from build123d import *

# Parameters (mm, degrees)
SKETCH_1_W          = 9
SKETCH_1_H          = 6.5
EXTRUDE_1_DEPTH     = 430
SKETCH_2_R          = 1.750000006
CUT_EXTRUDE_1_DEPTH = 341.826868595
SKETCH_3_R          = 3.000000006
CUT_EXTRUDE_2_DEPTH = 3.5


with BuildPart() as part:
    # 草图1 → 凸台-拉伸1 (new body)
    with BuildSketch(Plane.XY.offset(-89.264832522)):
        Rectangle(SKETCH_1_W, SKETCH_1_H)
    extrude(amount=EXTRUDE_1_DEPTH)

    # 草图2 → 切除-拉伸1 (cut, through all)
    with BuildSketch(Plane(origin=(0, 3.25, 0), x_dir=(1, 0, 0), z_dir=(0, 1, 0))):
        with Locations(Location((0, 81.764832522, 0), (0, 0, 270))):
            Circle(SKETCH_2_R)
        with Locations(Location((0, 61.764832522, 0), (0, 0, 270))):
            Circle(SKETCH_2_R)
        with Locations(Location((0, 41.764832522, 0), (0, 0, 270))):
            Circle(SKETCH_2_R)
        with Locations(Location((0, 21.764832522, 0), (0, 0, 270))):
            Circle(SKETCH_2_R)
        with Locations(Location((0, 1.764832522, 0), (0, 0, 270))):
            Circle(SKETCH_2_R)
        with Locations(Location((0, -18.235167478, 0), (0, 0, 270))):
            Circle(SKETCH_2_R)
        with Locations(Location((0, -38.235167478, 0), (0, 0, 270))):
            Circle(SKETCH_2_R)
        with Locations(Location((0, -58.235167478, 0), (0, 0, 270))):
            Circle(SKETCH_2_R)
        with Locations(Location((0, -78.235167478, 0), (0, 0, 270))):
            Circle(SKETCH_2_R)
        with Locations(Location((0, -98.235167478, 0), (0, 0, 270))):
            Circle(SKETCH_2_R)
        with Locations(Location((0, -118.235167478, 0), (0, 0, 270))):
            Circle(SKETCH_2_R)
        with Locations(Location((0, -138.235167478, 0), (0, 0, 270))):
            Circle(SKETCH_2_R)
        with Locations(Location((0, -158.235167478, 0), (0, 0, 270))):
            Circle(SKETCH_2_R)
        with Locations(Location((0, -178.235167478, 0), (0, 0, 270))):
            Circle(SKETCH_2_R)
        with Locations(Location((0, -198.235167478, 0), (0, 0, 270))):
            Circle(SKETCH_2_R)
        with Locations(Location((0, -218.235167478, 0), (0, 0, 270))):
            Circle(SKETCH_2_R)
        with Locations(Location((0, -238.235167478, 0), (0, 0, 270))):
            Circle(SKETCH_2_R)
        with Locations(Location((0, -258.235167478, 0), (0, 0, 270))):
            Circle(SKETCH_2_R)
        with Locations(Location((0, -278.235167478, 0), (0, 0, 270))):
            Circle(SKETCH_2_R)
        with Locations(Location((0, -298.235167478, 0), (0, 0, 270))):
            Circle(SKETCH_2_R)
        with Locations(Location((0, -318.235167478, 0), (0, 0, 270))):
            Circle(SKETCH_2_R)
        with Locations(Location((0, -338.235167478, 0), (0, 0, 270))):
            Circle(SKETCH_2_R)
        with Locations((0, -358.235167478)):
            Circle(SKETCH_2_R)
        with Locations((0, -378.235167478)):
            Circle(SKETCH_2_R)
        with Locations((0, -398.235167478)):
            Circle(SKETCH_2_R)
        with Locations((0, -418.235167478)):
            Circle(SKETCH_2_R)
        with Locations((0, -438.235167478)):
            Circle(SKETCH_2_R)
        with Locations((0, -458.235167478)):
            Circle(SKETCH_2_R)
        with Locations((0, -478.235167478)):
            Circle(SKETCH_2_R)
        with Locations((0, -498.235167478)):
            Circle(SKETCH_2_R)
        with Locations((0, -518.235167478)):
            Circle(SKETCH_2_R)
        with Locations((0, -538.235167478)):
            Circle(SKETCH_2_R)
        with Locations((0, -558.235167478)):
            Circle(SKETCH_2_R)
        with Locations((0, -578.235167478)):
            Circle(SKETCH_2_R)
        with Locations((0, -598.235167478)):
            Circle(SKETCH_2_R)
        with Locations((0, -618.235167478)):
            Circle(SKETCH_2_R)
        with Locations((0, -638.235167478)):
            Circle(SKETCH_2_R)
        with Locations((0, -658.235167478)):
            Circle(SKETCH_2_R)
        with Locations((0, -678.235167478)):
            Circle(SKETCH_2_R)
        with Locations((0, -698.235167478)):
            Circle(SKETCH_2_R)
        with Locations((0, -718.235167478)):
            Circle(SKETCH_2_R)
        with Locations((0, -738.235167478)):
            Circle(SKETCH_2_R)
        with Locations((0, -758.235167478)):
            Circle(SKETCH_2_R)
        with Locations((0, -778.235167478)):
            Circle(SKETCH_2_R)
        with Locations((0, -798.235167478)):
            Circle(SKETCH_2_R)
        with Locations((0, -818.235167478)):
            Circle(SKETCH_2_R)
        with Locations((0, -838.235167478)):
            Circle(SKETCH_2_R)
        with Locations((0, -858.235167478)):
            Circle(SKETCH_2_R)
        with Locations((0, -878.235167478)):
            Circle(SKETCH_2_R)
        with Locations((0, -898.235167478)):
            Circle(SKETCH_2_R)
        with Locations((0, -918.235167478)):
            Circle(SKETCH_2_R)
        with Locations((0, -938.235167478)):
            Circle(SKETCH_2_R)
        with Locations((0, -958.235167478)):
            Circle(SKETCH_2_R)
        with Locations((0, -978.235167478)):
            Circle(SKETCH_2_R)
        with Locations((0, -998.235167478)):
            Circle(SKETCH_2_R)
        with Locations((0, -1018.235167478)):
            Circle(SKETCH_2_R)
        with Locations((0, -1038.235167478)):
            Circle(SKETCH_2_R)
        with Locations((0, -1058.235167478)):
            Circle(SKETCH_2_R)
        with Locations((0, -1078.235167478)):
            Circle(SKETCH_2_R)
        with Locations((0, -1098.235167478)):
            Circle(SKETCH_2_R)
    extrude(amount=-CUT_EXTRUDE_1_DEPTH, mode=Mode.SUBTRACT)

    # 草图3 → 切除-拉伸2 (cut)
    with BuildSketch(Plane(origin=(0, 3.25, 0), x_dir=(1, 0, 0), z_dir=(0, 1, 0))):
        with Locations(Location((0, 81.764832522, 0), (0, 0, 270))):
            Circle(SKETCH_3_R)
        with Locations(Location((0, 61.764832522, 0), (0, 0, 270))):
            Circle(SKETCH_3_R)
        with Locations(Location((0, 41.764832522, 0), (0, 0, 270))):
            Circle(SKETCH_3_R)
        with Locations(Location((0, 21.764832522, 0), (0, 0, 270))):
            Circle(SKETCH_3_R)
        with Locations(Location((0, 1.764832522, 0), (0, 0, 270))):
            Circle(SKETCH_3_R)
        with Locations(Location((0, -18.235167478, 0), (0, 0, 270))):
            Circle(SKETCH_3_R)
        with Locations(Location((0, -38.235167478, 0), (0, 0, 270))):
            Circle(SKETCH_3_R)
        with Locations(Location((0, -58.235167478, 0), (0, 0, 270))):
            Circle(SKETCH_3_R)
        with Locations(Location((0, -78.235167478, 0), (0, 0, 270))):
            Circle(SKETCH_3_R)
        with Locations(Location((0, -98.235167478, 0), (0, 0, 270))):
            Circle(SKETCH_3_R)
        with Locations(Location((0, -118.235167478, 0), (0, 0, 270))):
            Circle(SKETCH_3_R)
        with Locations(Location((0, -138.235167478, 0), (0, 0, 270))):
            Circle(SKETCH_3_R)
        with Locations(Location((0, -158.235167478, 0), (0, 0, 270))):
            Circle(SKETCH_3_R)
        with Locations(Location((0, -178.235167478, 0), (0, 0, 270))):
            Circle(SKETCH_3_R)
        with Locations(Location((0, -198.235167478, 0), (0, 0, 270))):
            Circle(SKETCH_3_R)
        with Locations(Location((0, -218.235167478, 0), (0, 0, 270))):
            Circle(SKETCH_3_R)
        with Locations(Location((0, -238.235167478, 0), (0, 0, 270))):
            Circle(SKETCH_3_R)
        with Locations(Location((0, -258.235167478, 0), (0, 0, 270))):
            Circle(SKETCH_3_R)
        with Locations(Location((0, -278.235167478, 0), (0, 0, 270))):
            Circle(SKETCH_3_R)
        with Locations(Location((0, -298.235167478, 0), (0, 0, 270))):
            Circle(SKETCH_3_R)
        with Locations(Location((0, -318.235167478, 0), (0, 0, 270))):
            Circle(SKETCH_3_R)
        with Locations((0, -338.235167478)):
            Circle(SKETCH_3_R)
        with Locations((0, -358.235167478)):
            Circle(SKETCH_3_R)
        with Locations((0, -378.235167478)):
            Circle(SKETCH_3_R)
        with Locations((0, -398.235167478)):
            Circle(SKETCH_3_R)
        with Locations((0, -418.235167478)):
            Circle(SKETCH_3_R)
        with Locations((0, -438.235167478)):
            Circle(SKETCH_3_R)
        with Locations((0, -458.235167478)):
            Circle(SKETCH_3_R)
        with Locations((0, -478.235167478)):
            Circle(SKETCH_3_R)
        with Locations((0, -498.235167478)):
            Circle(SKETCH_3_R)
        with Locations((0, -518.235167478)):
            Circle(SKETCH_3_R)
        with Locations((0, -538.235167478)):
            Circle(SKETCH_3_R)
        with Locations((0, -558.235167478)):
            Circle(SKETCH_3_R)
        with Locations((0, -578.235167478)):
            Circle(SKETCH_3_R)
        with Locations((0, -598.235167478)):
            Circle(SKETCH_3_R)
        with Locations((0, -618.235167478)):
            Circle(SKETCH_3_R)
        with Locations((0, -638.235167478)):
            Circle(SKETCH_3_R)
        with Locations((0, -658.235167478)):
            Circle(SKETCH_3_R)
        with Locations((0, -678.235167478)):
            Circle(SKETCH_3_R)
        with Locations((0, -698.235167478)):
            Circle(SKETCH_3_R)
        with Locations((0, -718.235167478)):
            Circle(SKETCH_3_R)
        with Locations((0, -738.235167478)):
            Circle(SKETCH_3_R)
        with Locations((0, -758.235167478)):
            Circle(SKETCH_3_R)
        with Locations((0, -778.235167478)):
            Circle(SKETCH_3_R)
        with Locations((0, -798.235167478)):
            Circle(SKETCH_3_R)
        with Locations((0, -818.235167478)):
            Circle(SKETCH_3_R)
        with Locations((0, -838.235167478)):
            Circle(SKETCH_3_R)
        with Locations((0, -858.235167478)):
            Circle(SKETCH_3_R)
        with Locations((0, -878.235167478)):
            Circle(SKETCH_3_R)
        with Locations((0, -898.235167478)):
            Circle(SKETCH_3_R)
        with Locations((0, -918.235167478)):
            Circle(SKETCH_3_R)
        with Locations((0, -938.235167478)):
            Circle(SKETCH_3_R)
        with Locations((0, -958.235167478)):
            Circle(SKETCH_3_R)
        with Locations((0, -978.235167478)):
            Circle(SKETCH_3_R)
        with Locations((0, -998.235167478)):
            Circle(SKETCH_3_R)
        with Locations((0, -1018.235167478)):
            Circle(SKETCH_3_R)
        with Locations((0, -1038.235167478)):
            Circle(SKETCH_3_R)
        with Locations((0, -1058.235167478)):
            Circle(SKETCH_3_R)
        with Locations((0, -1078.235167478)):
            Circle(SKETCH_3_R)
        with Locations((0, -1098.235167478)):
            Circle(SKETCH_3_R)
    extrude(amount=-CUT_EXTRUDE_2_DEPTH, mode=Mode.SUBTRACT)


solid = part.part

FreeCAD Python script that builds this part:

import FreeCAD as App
import Part
import Sketcher
Q = App.Units.Quantity


def add_polygon(sketch, points):
    """Adds a closed chain of lines whose ends are joined by coincident constraints."""
    first, n = sketch.GeometryCount, len(points)
    for a, b in zip(points, points[1:] + points[:1]):
        sketch.addGeometry(Part.LineSegment(App.Vector(*a, 0), App.Vector(*b, 0)), False)
    for i in range(n):
        sketch.addConstraint(Sketcher.Constraint("Coincident", first + i, 2, first + (i + 1) % n, 1))

doc = App.newDocument("Part")
body = doc.addObject("PartDesign::Body", "Body")

sketch1 = body.newObject("Sketcher::SketchObject", "Sketch")
sketch1.AttachmentSupport = (doc.getObject("XY_Plane"), [""])
sketch1.MapMode = "FlatFace"
sketch1.AttachmentOffset = App.Placement(App.Vector(0, 0, -89.264833), App.Rotation())
add_polygon(sketch1, [(-4.5, 3.25), (-4.5, -3.25), (4.5, -3.25), (4.5, 3.25)])
sketch1.addConstraint(Sketcher.Constraint("Vertical", 0))
sketch1.addConstraint(Sketcher.Constraint("Horizontal", 1))
sketch1.addConstraint(Sketcher.Constraint("Vertical", 2))
sketch1.addConstraint(Sketcher.Constraint("Horizontal", 3))
sketch1.addConstraint(Sketcher.Constraint("Symmetric", 0, 2, 2, 2, -1, 1))
sketch1.addConstraint(Sketcher.Constraint("DistanceX", 1, 1, 1, 2, Q("9 mm")))
sketch1.addConstraint(Sketcher.Constraint("DistanceY", 0, 2, 0, 1, Q("6.5 mm")))
pad1 = body.newObject("PartDesign::Pad", "Pad")
pad1.Profile = sketch1
pad1.Length = 430

sketch2 = body.newObject("Sketcher::SketchObject", "Sketch001")
sketch2.AttachmentSupport = (doc.getObject("XZ_Plane"), [""])
sketch2.MapMode = "FlatFace"
sketch2.AttachmentOffset = App.Placement(App.Vector(0, 0, -3.25), App.Rotation())
sketch2.addGeometry(Part.Circle(App.Vector(0, -81.764833, 0), App.Vector(0, 0, 1), 1.75), False)
sketch2.addGeometry(Part.Circle(App.Vector(0, -61.764833, 0), App.Vector(0, 0, 1), 1.75), False)
sketch2.addGeometry(Part.Circle(App.Vector(0, -41.764833, 0), App.Vector(0, 0, 1), 1.75), False)
sketch2.addGeometry(Part.Circle(App.Vector(0, -21.764833, 0), App.Vector(0, 0, 1), 1.75), False)
sketch2.addGeometry(Part.Circle(App.Vector(0, -1.764833, 0), App.Vector(0, 0, 1), 1.75), False)
sketch2.addGeometry(Part.Circle(App.Vector(0, 18.235167, 0), App.Vector(0, 0, 1), 1.75), False)
sketch2.addGeometry(Part.Circle(App.Vector(0, 38.235167, 0), App.Vector(0, 0, 1), 1.75), False)
sketch2.addGeometry(Part.Circle(App.Vector(0, 58.235167, 0), App.Vector(0, 0, 1), 1.75), False)
sketch2.addGeometry(Part.Circle(App.Vector(0, 78.235167, 0), App.Vector(0, 0, 1), 1.75), False)
sketch2.addGeometry(Part.Circle(App.Vector(0, 98.235167, 0), App.Vector(0, 0, 1), 1.75), False)
sketch2.addGeometry(Part.Circle(App.Vector(0, 118.235167, 0), App.Vector(0, 0, 1), 1.75), False)
sketch2.addGeometry(Part.Circle(App.Vector(0, 138.235167, 0), App.Vector(0, 0, 1), 1.75), False)
sketch2.addGeometry(Part.Circle(App.Vector(0, 158.235167, 0), App.Vector(0, 0, 1), 1.75), False)
sketch2.addGeometry(Part.Circle(App.Vector(0, 178.235167, 0), App.Vector(0, 0, 1), 1.75), False)
sketch2.addGeometry(Part.Circle(App.Vector(0, 198.235167, 0), App.Vector(0, 0, 1), 1.75), False)
sketch2.addGeometry(Part.Circle(App.Vector(0, 218.235167, 0), App.Vector(0, 0, 1), 1.75), False)
sketch2.addGeometry(Part.Circle(App.Vector(0, 238.235167, 0), App.Vector(0, 0, 1), 1.75), False)
sketch2.addGeometry(Part.Circle(App.Vector(0, 258.235167, 0), App.Vector(0, 0, 1), 1.75), False)
sketch2.addGeometry(Part.Circle(App.Vector(0, 278.235167, 0), App.Vector(0, 0, 1), 1.75), False)
sketch2.addGeometry(Part.Circle(App.Vector(0, 298.235167, 0), App.Vector(0, 0, 1), 1.75), False)
sketch2.addGeometry(Part.Circle(App.Vector(0, 318.235167, 0), App.Vector(0, 0, 1), 1.75), False)
sketch2.addGeometry(Part.Circle(App.Vector(0, 338.235167, 0), App.Vector(0, 0, 1), 1.75), False)
sketch2.addGeometry(Part.Circle(App.Vector(0, 358.235167, 0), App.Vector(0, 0, 1), 1.75), False)
sketch2.addGeometry(Part.Circle(App.Vector(0, 378.235167, 0), App.Vector(0, 0, 1), 1.75), False)
sketch2.addGeometry(Part.Circle(App.Vector(0, 398.235167, 0), App.Vector(0, 0, 1), 1.75), False)
sketch2.addGeometry(Part.Circle(App.Vector(0, 418.235167, 0), App.Vector(0, 0, 1), 1.75), False)
sketch2.addGeometry(Part.Circle(App.Vector(0, 438.235167, 0), App.Vector(0, 0, 1), 1.75), False)
sketch2.addGeometry(Part.Circle(App.Vector(0, 458.235167, 0), App.Vector(0, 0, 1), 1.75), False)
sketch2.addGeometry(Part.Circle(App.Vector(0, 478.235167, 0), App.Vector(0, 0, 1), 1.75), False)
sketch2.addGeometry(Part.Circle(App.Vector(0, 498.235167, 0), App.Vector(0, 0, 1), 1.75), False)
sketch2.addGeometry(Part.Circle(App.Vector(0, 518.235167, 0), App.Vector(0, 0, 1), 1.75), False)
sketch2.addGeometry(Part.Circle(App.Vector(0, 538.235167, 0), App.Vector(0, 0, 1), 1.75), False)
sketch2.addGeometry(Part.Circle(App.Vector(0, 558.235167, 0), App.Vector(0, 0, 1), 1.75), False)
sketch2.addGeometry(Part.Circle(App.Vector(0, 578.235167, 0), App.Vector(0, 0, 1), 1.75), False)
sketch2.addGeometry(Part.Circle(App.Vector(0, 598.235167, 0), App.Vector(0, 0, 1), 1.75), False)
sketch2.addGeometry(Part.Circle(App.Vector(0, 618.235167, 0), App.Vector(0, 0, 1), 1.75), False)
sketch2.addGeometry(Part.Circle(App.Vector(0, 638.235167, 0), App.Vector(0, 0, 1), 1.75), False)
sketch2.addGeometry(Part.Circle(App.Vector(0, 658.235167, 0), App.Vector(0, 0, 1), 1.75), False)
sketch2.addGeometry(Part.Circle(App.Vector(0, 678.235167, 0), App.Vector(0, 0, 1), 1.75), False)
sketch2.addGeometry(Part.Circle(App.Vector(0, 698.235167, 0), App.Vector(0, 0, 1), 1.75), False)
sketch2.addGeometry(Part.Circle(App.Vector(0, 718.235167, 0), App.Vector(0, 0, 1), 1.75), False)
sketch2.addGeometry(Part.Circle(App.Vector(0, 738.235167, 0), App.Vector(0, 0, 1), 1.75), False)
sketch2.addGeometry(Part.Circle(App.Vector(0, 758.235167, 0), App.Vector(0, 0, 1), 1.75), False)
sketch2.addGeometry(Part.Circle(App.Vector(0, 778.235167, 0), App.Vector(0, 0, 1), 1.75), False)
sketch2.addGeometry(Part.Circle(App.Vector(0, 798.235167, 0), App.Vector(0, 0, 1), 1.75), False)
sketch2.addGeometry(Part.Circle(App.Vector(0, 818.235167, 0), App.Vector(0, 0, 1), 1.75), False)
sketch2.addGeometry(Part.Circle(App.Vector(0, 838.235167, 0), App.Vector(0, 0, 1), 1.75), False)
sketch2.addGeometry(Part.Circle(App.Vector(0, 858.235167, 0), App.Vector(0, 0, 1), 1.75), False)
sketch2.addGeometry(Part.Circle(App.Vector(0, 878.235167, 0), App.Vector(0, 0, 1), 1.75), False)
sketch2.addGeometry(Part.Circle(App.Vector(0, 898.235167, 0), App.Vector(0, 0, 1), 1.75), False)
sketch2.addGeometry(Part.Circle(App.Vector(0, 918.235167, 0), App.Vector(0, 0, 1), 1.75), False)
sketch2.addGeometry(Part.Circle(App.Vector(0, 938.235167, 0), App.Vector(0, 0, 1), 1.75), False)
sketch2.addGeometry(Part.Circle(App.Vector(0, 958.235167, 0), App.Vector(0, 0, 1), 1.75), False)
sketch2.addGeometry(Part.Circle(App.Vector(0, 978.235167, 0), App.Vector(0, 0, 1), 1.75), False)
sketch2.addGeometry(Part.Circle(App.Vector(0, 998.235167, 0), App.Vector(0, 0, 1), 1.75), False)
sketch2.addGeometry(Part.Circle(App.Vector(0, 1018.235167, 0), App.Vector(0, 0, 1), 1.75), False)
sketch2.addGeometry(Part.Circle(App.Vector(0, 1038.235167, 0), App.Vector(0, 0, 1), 1.75), False)
sketch2.addGeometry(Part.Circle(App.Vector(0, 1058.235167, 0), App.Vector(0, 0, 1), 1.75), False)
sketch2.addGeometry(Part.Circle(App.Vector(0, 1078.235167, 0), App.Vector(0, 0, 1), 1.75), False)
sketch2.addGeometry(Part.Circle(App.Vector(0, 1098.235167, 0), App.Vector(0, 0, 1), 1.75), False)
sketch2.addConstraint(Sketcher.Constraint("Equal", 0, 1))
sketch2.addConstraint(Sketcher.Constraint("Equal", 1, 2))
sketch2.addConstraint(Sketcher.Constraint("Equal", 2, 3))
sketch2.addConstraint(Sketcher.Constraint("Equal", 3, 4))
sketch2.addConstraint(Sketcher.Constraint("Equal", 4, 5))
sketch2.addConstraint(Sketcher.Constraint("Equal", 5, 6))
sketch2.addConstraint(Sketcher.Constraint("Equal", 6, 7))
sketch2.addConstraint(Sketcher.Constraint("Equal", 7, 8))
sketch2.addConstraint(Sketcher.Constraint("Equal", 8, 9))
sketch2.addConstraint(Sketcher.Constraint("Equal", 9, 10))
sketch2.addConstraint(Sketcher.Constraint("Equal", 10, 11))
sketch2.addConstraint(Sketcher.Constraint("Equal", 11, 12))
sketch2.addConstraint(Sketcher.Constraint("Equal", 12, 13))
sketch2.addConstraint(Sketcher.Constraint("Equal", 13, 14))
sketch2.addConstraint(Sketcher.Constraint("Equal", 14, 15))
sketch2.addConstraint(Sketcher.Constraint("Equal", 15, 16))
sketch2.addConstraint(Sketcher.Constraint("Equal", 16, 17))
sketch2.addConstraint(Sketcher.Constraint("Equal", 17, 18))
sketch2.addConstraint(Sketcher.Constraint("Equal", 18, 19))
sketch2.addConstraint(Sketcher.Constraint("Equal", 19, 20))
sketch2.addConstraint(Sketcher.Constraint("Equal", 20, 21))
sketch2.addConstraint(Sketcher.Constraint("Equal", 21, 22))
sketch2.addConstraint(Sketcher.Constraint("Equal", 22, 23))
sketch2.addConstraint(Sketcher.Constraint("Equal", 23, 24))
sketch2.addConstraint(Sketcher.Constraint("Equal", 24, 25))
sketch2.addConstraint(Sketcher.Constraint("Equal", 25, 26))
sketch2.addConstraint(Sketcher.Constraint("Equal", 26, 27))
sketch2.addConstraint(Sketcher.Constraint("Equal", 27, 28))
sketch2.addConstraint(Sketcher.Constraint("Equal", 28, 29))
sketch2.addConstraint(Sketcher.Constraint("Equal", 29, 30))
sketch2.addConstraint(Sketcher.Constraint("Equal", 30, 31))
sketch2.addConstraint(Sketcher.Constraint("Equal", 31, 32))
sketch2.addConstraint(Sketcher.Constraint("Equal", 32, 33))
sketch2.addConstraint(Sketcher.Constraint("Equal", 33, 34))
sketch2.addConstraint(Sketcher.Constraint("Equal", 34, 35))
sketch2.addConstraint(Sketcher.Constraint("Equal", 35, 36))
sketch2.addConstraint(Sketcher.Constraint("Equal", 36, 37))
sketch2.addConstraint(Sketcher.Constraint("Equal", 37, 38))
sketch2.addConstraint(Sketcher.Constraint("Equal", 38, 39))
sketch2.addConstraint(Sketcher.Constraint("Equal", 39, 40))
sketch2.addConstraint(Sketcher.Constraint("Equal", 40, 41))
sketch2.addConstraint(Sketcher.Constraint("Equal", 41, 42))
sketch2.addConstraint(Sketcher.Constraint("Equal", 42, 43))
sketch2.addConstraint(Sketcher.Constraint("Equal", 43, 44))
sketch2.addConstraint(Sketcher.Constraint("Equal", 44, 45))
sketch2.addConstraint(Sketcher.Constraint("Equal", 45, 46))
sketch2.addConstraint(Sketcher.Constraint("Equal", 46, 47))
sketch2.addConstraint(Sketcher.Constraint("Equal", 47, 48))
sketch2.addConstraint(Sketcher.Constraint("Equal", 48, 49))
sketch2.addConstraint(Sketcher.Constraint("Equal", 49, 50))
sketch2.addConstraint(Sketcher.Constraint("Equal", 50, 51))
sketch2.addConstraint(Sketcher.Constraint("Equal", 51, 52))
sketch2.addConstraint(Sketcher.Constraint("Equal", 52, 53))
sketch2.addConstraint(Sketcher.Constraint("Equal", 53, 54))
sketch2.addConstraint(Sketcher.Constraint("Equal", 54, 55))
sketch2.addConstraint(Sketcher.Constraint("Equal", 55, 56))
sketch2.addConstraint(Sketcher.Constraint("Equal", 56, 57))
sketch2.addConstraint(Sketcher.Constraint("Equal", 57, 58))
sketch2.addConstraint(Sketcher.Constraint("Equal", 58, 59))
sketch2.addConstraint(Sketcher.Constraint("PointOnObject", 0, 3, -2))
sketch2.addConstraint(Sketcher.Constraint("PointOnObject", 1, 3, -2))
sketch2.addConstraint(Sketcher.Constraint("PointOnObject", 2, 3, -2))
sketch2.addConstraint(Sketcher.Constraint("PointOnObject", 3, 3, -2))
sketch2.addConstraint(Sketcher.Constraint("PointOnObject", 4, 3, -2))
sketch2.addConstraint(Sketcher.Constraint("PointOnObject", 5, 3, -2))
sketch2.addConstraint(Sketcher.Constraint("PointOnObject", 6, 3, -2))
sketch2.addConstraint(Sketcher.Constraint("PointOnObject", 7, 3, -2))
sketch2.addConstraint(Sketcher.Constraint("PointOnObject", 8, 3, -2))
sketch2.addConstraint(Sketcher.Constraint("PointOnObject", 9, 3, -2))
sketch2.addConstraint(Sketcher.Constraint("PointOnObject", 10, 3, -2))
sketch2.addConstraint(Sketcher.Constraint("PointOnObject", 11, 3, -2))
sketch2.addConstraint(Sketcher.Constraint("PointOnObject", 12, 3, -2))
sketch2.addConstraint(Sketcher.Constraint("PointOnObject", 13, 3, -2))
sketch2.addConstraint(Sketcher.Constraint("PointOnObject", 14, 3, -2))
sketch2.addConstraint(Sketcher.Constraint("PointOnObject", 15, 3, -2))
sketch2.addConstraint(Sketcher.Constraint("PointOnObject", 16, 3, -2))
sketch2.addConstraint(Sketcher.Constraint("PointOnObject", 17, 3, -2))
sketch2.addConstraint(Sketcher.Constraint("PointOnObject", 18, 3, -2))
sketch2.addConstraint(Sketcher.Constraint("PointOnObject", 19, 3, -2))
sketch2.addConstraint(Sketcher.Constraint("PointOnObject", 20, 3, -2))
sketch2.addConstraint(Sketcher.Constraint("PointOnObject", 21, 3, -2))
sketch2.addConstraint(Sketcher.Constraint("PointOnObject", 22, 3, -2))
sketch2.addConstraint(Sketcher.Constraint("PointOnObject", 23, 3, -2))
sketch2.addConstraint(Sketcher.Constraint("PointOnObject", 24, 3, -2))
sketch2.addConstraint(Sketcher.Constraint("PointOnObject", 25, 3, -2))
sketch2.addConstraint(Sketcher.Constraint("PointOnObject", 26, 3, -2))
sketch2.addConstraint(Sketcher.Constraint("PointOnObject", 27, 3, -2))
sketch2.addConstraint(Sketcher.Constraint("PointOnObject", 28, 3, -2))
sketch2.addConstraint(Sketcher.Constraint("PointOnObject", 29, 3, -2))
sketch2.addConstraint(Sketcher.Constraint("PointOnObject", 30, 3, -2))
sketch2.addConstraint(Sketcher.Constraint("PointOnObject", 31, 3, -2))
sketch2.addConstraint(Sketcher.Constraint("PointOnObject", 32, 3, -2))
sketch2.addConstraint(Sketcher.Constraint("PointOnObject", 33, 3, -2))
sketch2.addConstraint(Sketcher.Constraint("PointOnObject", 34, 3, -2))
sketch2.addConstraint(Sketcher.Constraint("PointOnObject", 35, 3, -2))
sketch2.addConstraint(Sketcher.Constraint("PointOnObject", 36, 3, -2))
sketch2.addConstraint(Sketcher.Constraint("PointOnObject", 37, 3, -2))
sketch2.addConstraint(Sketcher.Constraint("PointOnObject", 38, 3, -2))
sketch2.addConstraint(Sketcher.Constraint("PointOnObject", 39, 3, -2))
sketch2.addConstraint(Sketcher.Constraint("PointOnObject", 40, 3, -2))
sketch2.addConstraint(Sketcher.Constraint("PointOnObject", 41, 3, -2))
sketch2.addConstraint(Sketcher.Constraint("PointOnObject", 42, 3, -2))
sketch2.addConstraint(Sketcher.Constraint("PointOnObject", 43, 3, -2))
sketch2.addConstraint(Sketcher.Constraint("PointOnObject", 44, 3, -2))
sketch2.addConstraint(Sketcher.Constraint("PointOnObject", 45, 3, -2))
sketch2.addConstraint(Sketcher.Constraint("PointOnObject", 46, 3, -2))
sketch2.addConstraint(Sketcher.Constraint("PointOnObject", 47, 3, -2))
sketch2.addConstraint(Sketcher.Constraint("PointOnObject", 48, 3, -2))
sketch2.addConstraint(Sketcher.Constraint("PointOnObject", 49, 3, -2))
sketch2.addConstraint(Sketcher.Constraint("PointOnObject", 50, 3, -2))
sketch2.addConstraint(Sketcher.Constraint("PointOnObject", 51, 3, -2))
sketch2.addConstraint(Sketcher.Constraint("PointOnObject", 52, 3, -2))
sketch2.addConstraint(Sketcher.Constraint("PointOnObject", 53, 3, -2))
sketch2.addConstraint(Sketcher.Constraint("PointOnObject", 54, 3, -2))
sketch2.addConstraint(Sketcher.Constraint("PointOnObject", 55, 3, -2))
sketch2.addConstraint(Sketcher.Constraint("PointOnObject", 56, 3, -2))
sketch2.addConstraint(Sketcher.Constraint("PointOnObject", 57, 3, -2))
sketch2.addConstraint(Sketcher.Constraint("PointOnObject", 58, 3, -2))
sketch2.addConstraint(Sketcher.Constraint("PointOnObject", 59, 3, -2))
sketch2.addConstraint(Sketcher.Constraint("Diameter", 0, Q("3.5 mm")))
sketch2.addConstraint(Sketcher.Constraint("DistanceY", 0, 3, 1, 3, Q("20 mm")))
sketch2.addConstraint(Sketcher.Constraint("DistanceY", 1, 3, 2, 3, Q("20 mm")))
sketch2.addConstraint(Sketcher.Constraint("DistanceY", 2, 3, 3, 3, Q("20 mm")))
sketch2.addConstraint(Sketcher.Constraint("DistanceY", 3, 3, 4, 3, Q("20 mm")))
sketch2.addConstraint(Sketcher.Constraint("DistanceY", 4, 3, 5, 3, Q("20 mm")))
sketch2.addConstraint(Sketcher.Constraint("DistanceY", 5, 3, 6, 3, Q("20 mm")))
sketch2.addConstraint(Sketcher.Constraint("DistanceY", 6, 3, 7, 3, Q("20 mm")))
sketch2.addConstraint(Sketcher.Constraint("DistanceY", 7, 3, 8, 3, Q("20 mm")))
sketch2.addConstraint(Sketcher.Constraint("DistanceY", 8, 3, 9, 3, Q("20 mm")))
sketch2.addConstraint(Sketcher.Constraint("DistanceY", 9, 3, 10, 3, Q("20 mm")))
sketch2.addConstraint(Sketcher.Constraint("DistanceY", 10, 3, 11, 3, Q("20 mm")))
sketch2.addConstraint(Sketcher.Constraint("DistanceY", 11, 3, 12, 3, Q("20 mm")))
sketch2.addConstraint(Sketcher.Constraint("DistanceY", 12, 3, 13, 3, Q("20 mm")))
sketch2.addConstraint(Sketcher.Constraint("DistanceY", 13, 3, 14, 3, Q("20 mm")))
sketch2.addConstraint(Sketcher.Constraint("DistanceY", 14, 3, 15, 3, Q("20 mm")))
sketch2.addConstraint(Sketcher.Constraint("DistanceY", 15, 3, 16, 3, Q("20 mm")))
sketch2.addConstraint(Sketcher.Constraint("DistanceY", 16, 3, 17, 3, Q("20 mm")))
sketch2.addConstraint(Sketcher.Constraint("DistanceY", 17, 3, 18, 3, Q("20 mm")))
sketch2.addConstraint(Sketcher.Constraint("DistanceY", 18, 3, 19, 3, Q("20 mm")))
sketch2.addConstraint(Sketcher.Constraint("DistanceY", 19, 3, 20, 3, Q("20 mm")))
sketch2.addConstraint(Sketcher.Constraint("DistanceY", 20, 3, 21, 3, Q("20 mm")))
sketch2.addConstraint(Sketcher.Constraint("DistanceY", 21, 3, 22, 3, Q("20 mm")))
sketch2.addConstraint(Sketcher.Constraint("DistanceY", 22, 3, 23, 3, Q("20 mm")))
sketch2.addConstraint(Sketcher.Constraint("DistanceY", 23, 3, 24, 3, Q("20 mm")))
sketch2.addConstraint(Sketcher.Constraint("DistanceY", 24, 3, 25, 3, Q("20 mm")))
sketch2.addConstraint(Sketcher.Constraint("DistanceY", 25, 3, 26, 3, Q("20 mm")))
sketch2.addConstraint(Sketcher.Constraint("DistanceY", 26, 3, 27, 3, Q("20 mm")))
sketch2.addConstraint(Sketcher.Constraint("DistanceY", 27, 3, 28, 3, Q("20 mm")))
sketch2.addConstraint(Sketcher.Constraint("DistanceY", 28, 3, 29, 3, Q("20 mm")))
sketch2.addConstraint(Sketcher.Constraint("DistanceY", 29, 3, 30, 3, Q("20 mm")))
sketch2.addConstraint(Sketcher.Constraint("DistanceY", 30, 3, 31, 3, Q("20 mm")))
sketch2.addConstraint(Sketcher.Constraint("DistanceY", 31, 3, 32, 3, Q("20 mm")))
sketch2.addConstraint(Sketcher.Constraint("DistanceY", 32, 3, 33, 3, Q("20 mm")))
sketch2.addConstraint(Sketcher.Constraint("DistanceY", 33, 3, 34, 3, Q("20 mm")))
sketch2.addConstraint(Sketcher.Constraint("DistanceY", 34, 3, 35, 3, Q("20 mm")))
sketch2.addConstraint(Sketcher.Constraint("DistanceY", 35, 3, 36, 3, Q("20 mm")))
sketch2.addConstraint(Sketcher.Constraint("DistanceY", 36, 3, 37, 3, Q("20 mm")))
sketch2.addConstraint(Sketcher.Constraint("DistanceY", 37, 3, 38, 3, Q("20 mm")))
sketch2.addConstraint(Sketcher.Constraint("DistanceY", 38, 3, 39, 3, Q("20 mm")))
sketch2.addConstraint(Sketcher.Constraint("DistanceY", 39, 3, 40, 3, Q("20 mm")))
sketch2.addConstraint(Sketcher.Constraint("DistanceY", 40, 3, 41, 3, Q("20 mm")))
sketch2.addConstraint(Sketcher.Constraint("DistanceY", 41, 3, 42, 3, Q("20 mm")))
sketch2.addConstraint(Sketcher.Constraint("DistanceY", 42, 3, 43, 3, Q("20 mm")))
sketch2.addConstraint(Sketcher.Constraint("DistanceY", 43, 3, 44, 3, Q("20 mm")))
sketch2.addConstraint(Sketcher.Constraint("DistanceY", 44, 3, 45, 3, Q("20 mm")))
sketch2.addConstraint(Sketcher.Constraint("DistanceY", 45, 3, 46, 3, Q("20 mm")))
sketch2.addConstraint(Sketcher.Constraint("DistanceY", 46, 3, 47, 3, Q("20 mm")))
sketch2.addConstraint(Sketcher.Constraint("DistanceY", 47, 3, 48, 3, Q("20 mm")))
sketch2.addConstraint(Sketcher.Constraint("DistanceY", 48, 3, 49, 3, Q("20 mm")))
sketch2.addConstraint(Sketcher.Constraint("DistanceY", 49, 3, 50, 3, Q("20 mm")))
sketch2.addConstraint(Sketcher.Constraint("DistanceY", 50, 3, 51, 3, Q("20 mm")))
sketch2.addConstraint(Sketcher.Constraint("DistanceY", 51, 3, 52, 3, Q("20 mm")))
sketch2.addConstraint(Sketcher.Constraint("DistanceY", 52, 3, 53, 3, Q("20 mm")))
sketch2.addConstraint(Sketcher.Constraint("DistanceY", 53, 3, 54, 3, Q("20 mm")))
sketch2.addConstraint(Sketcher.Constraint("DistanceY", 54, 3, 55, 3, Q("20 mm")))
sketch2.addConstraint(Sketcher.Constraint("DistanceY", 55, 3, 56, 3, Q("20 mm")))
sketch2.addConstraint(Sketcher.Constraint("DistanceY", 56, 3, 57, 3, Q("20 mm")))
sketch2.addConstraint(Sketcher.Constraint("DistanceY", 57, 3, 58, 3, Q("20 mm")))
sketch2.addConstraint(Sketcher.Constraint("DistanceY", 58, 3, 59, 3, Q("20 mm")))
sketch2.addConstraint(Sketcher.Constraint("DistanceY", 0, 3, -1, 1, Q("81.764833 mm")))
pocket1 = body.newObject("PartDesign::Pocket", "Pocket")
pocket1.Profile = sketch2
pocket1.Type = "ThroughAll"
pocket1.Reversed = True

sketch3 = body.newObject("Sketcher::SketchObject", "Sketch002")
sketch3.AttachmentSupport = (doc.getObject("XZ_Plane"), [""])
sketch3.MapMode = "FlatFace"
sketch3.AttachmentOffset = App.Placement(App.Vector(0, 0, -3.25), App.Rotation())
sketch3.addGeometry(Part.Circle(App.Vector(0, -81.764833, 0), App.Vector(0, 0, 1), 3), False)
sketch3.addGeometry(Part.Circle(App.Vector(0, -61.764833, 0), App.Vector(0, 0, 1), 3), False)
sketch3.addGeometry(Part.Circle(App.Vector(0, -41.764833, 0), App.Vector(0, 0, 1), 3), False)
sketch3.addGeometry(Part.Circle(App.Vector(0, -21.764833, 0), App.Vector(0, 0, 1), 3), False)
sketch3.addGeometry(Part.Circle(App.Vector(0, -1.764833, 0), App.Vector(0, 0, 1), 3), False)
sketch3.addGeometry(Part.Circle(App.Vector(0, 18.235167, 0), App.Vector(0, 0, 1), 3), False)
sketch3.addGeometry(Part.Circle(App.Vector(0, 38.235167, 0), App.Vector(0, 0, 1), 3), False)
sketch3.addGeometry(Part.Circle(App.Vector(0, 58.235167, 0), App.Vector(0, 0, 1), 3), False)
sketch3.addGeometry(Part.Circle(App.Vector(0, 78.235167, 0), App.Vector(0, 0, 1), 3), False)
sketch3.addGeometry(Part.Circle(App.Vector(0, 98.235167, 0), App.Vector(0, 0, 1), 3), False)
sketch3.addGeometry(Part.Circle(App.Vector(0, 118.235167, 0), App.Vector(0, 0, 1), 3), False)
sketch3.addGeometry(Part.Circle(App.Vector(0, 138.235167, 0), App.Vector(0, 0, 1), 3), False)
sketch3.addGeometry(Part.Circle(App.Vector(0, 158.235167, 0), App.Vector(0, 0, 1), 3), False)
sketch3.addGeometry(Part.Circle(App.Vector(0, 178.235167, 0), App.Vector(0, 0, 1), 3), False)
sketch3.addGeometry(Part.Circle(App.Vector(0, 198.235167, 0), App.Vector(0, 0, 1), 3), False)
sketch3.addGeometry(Part.Circle(App.Vector(0, 218.235167, 0), App.Vector(0, 0, 1), 3), False)
sketch3.addGeometry(Part.Circle(App.Vector(0, 238.235167, 0), App.Vector(0, 0, 1), 3), False)
sketch3.addGeometry(Part.Circle(App.Vector(0, 258.235167, 0), App.Vector(0, 0, 1), 3), False)
sketch3.addGeometry(Part.Circle(App.Vector(0, 278.235167, 0), App.Vector(0, 0, 1), 3), False)
sketch3.addGeometry(Part.Circle(App.Vector(0, 298.235167, 0), App.Vector(0, 0, 1), 3), False)
sketch3.addGeometry(Part.Circle(App.Vector(0, 318.235167, 0), App.Vector(0, 0, 1), 3), False)
sketch3.addGeometry(Part.Circle(App.Vector(0, 338.235167, 0), App.Vector(0, 0, 1), 3), False)
sketch3.addGeometry(Part.Circle(App.Vector(0, 358.235167, 0), App.Vector(0, 0, 1), 3), False)
sketch3.addGeometry(Part.Circle(App.Vector(0, 378.235167, 0), App.Vector(0, 0, 1), 3), False)
sketch3.addGeometry(Part.Circle(App.Vector(0, 398.235167, 0), App.Vector(0, 0, 1), 3), False)
sketch3.addGeometry(Part.Circle(App.Vector(0, 418.235167, 0), App.Vector(0, 0, 1), 3), False)
sketch3.addGeometry(Part.Circle(App.Vector(0, 438.235167, 0), App.Vector(0, 0, 1), 3), False)
sketch3.addGeometry(Part.Circle(App.Vector(0, 458.235167, 0), App.Vector(0, 0, 1), 3), False)
sketch3.addGeometry(Part.Circle(App.Vector(0, 478.235167, 0), App.Vector(0, 0, 1), 3), False)
sketch3.addGeometry(Part.Circle(App.Vector(0, 498.235167, 0), App.Vector(0, 0, 1), 3), False)
sketch3.addGeometry(Part.Circle(App.Vector(0, 518.235167, 0), App.Vector(0, 0, 1), 3), False)
sketch3.addGeometry(Part.Circle(App.Vector(0, 538.235167, 0), App.Vector(0, 0, 1), 3), False)
sketch3.addGeometry(Part.Circle(App.Vector(0, 558.235167, 0), App.Vector(0, 0, 1), 3), False)
sketch3.addGeometry(Part.Circle(App.Vector(0, 578.235167, 0), App.Vector(0, 0, 1), 3), False)
sketch3.addGeometry(Part.Circle(App.Vector(0, 598.235167, 0), App.Vector(0, 0, 1), 3), False)
sketch3.addGeometry(Part.Circle(App.Vector(0, 618.235167, 0), App.Vector(0, 0, 1), 3), False)
sketch3.addGeometry(Part.Circle(App.Vector(0, 638.235167, 0), App.Vector(0, 0, 1), 3), False)
sketch3.addGeometry(Part.Circle(App.Vector(0, 658.235167, 0), App.Vector(0, 0, 1), 3), False)
sketch3.addGeometry(Part.Circle(App.Vector(0, 678.235167, 0), App.Vector(0, 0, 1), 3), False)
sketch3.addGeometry(Part.Circle(App.Vector(0, 698.235167, 0), App.Vector(0, 0, 1), 3), False)
sketch3.addGeometry(Part.Circle(App.Vector(0, 718.235167, 0), App.Vector(0, 0, 1), 3), False)
sketch3.addGeometry(Part.Circle(App.Vector(0, 738.235167, 0), App.Vector(0, 0, 1), 3), False)
sketch3.addGeometry(Part.Circle(App.Vector(0, 758.235167, 0), App.Vector(0, 0, 1), 3), False)
sketch3.addGeometry(Part.Circle(App.Vector(0, 778.235167, 0), App.Vector(0, 0, 1), 3), False)
sketch3.addGeometry(Part.Circle(App.Vector(0, 798.235167, 0), App.Vector(0, 0, 1), 3), False)
sketch3.addGeometry(Part.Circle(App.Vector(0, 818.235167, 0), App.Vector(0, 0, 1), 3), False)
sketch3.addGeometry(Part.Circle(App.Vector(0, 838.235167, 0), App.Vector(0, 0, 1), 3), False)
sketch3.addGeometry(Part.Circle(App.Vector(0, 858.235167, 0), App.Vector(0, 0, 1), 3), False)
sketch3.addGeometry(Part.Circle(App.Vector(0, 878.235167, 0), App.Vector(0, 0, 1), 3), False)
sketch3.addGeometry(Part.Circle(App.Vector(0, 898.235167, 0), App.Vector(0, 0, 1), 3), False)
sketch3.addGeometry(Part.Circle(App.Vector(0, 918.235167, 0), App.Vector(0, 0, 1), 3), False)
sketch3.addGeometry(Part.Circle(App.Vector(0, 938.235167, 0), App.Vector(0, 0, 1), 3), False)
sketch3.addGeometry(Part.Circle(App.Vector(0, 958.235167, 0), App.Vector(0, 0, 1), 3), False)
sketch3.addGeometry(Part.Circle(App.Vector(0, 978.235167, 0), App.Vector(0, 0, 1), 3), False)
sketch3.addGeometry(Part.Circle(App.Vector(0, 998.235167, 0), App.Vector(0, 0, 1), 3), False)
sketch3.addGeometry(Part.Circle(App.Vector(0, 1018.235167, 0), App.Vector(0, 0, 1), 3), False)
sketch3.addGeometry(Part.Circle(App.Vector(0, 1038.235167, 0), App.Vector(0, 0, 1), 3), False)
sketch3.addGeometry(Part.Circle(App.Vector(0, 1058.235167, 0), App.Vector(0, 0, 1), 3), False)
sketch3.addGeometry(Part.Circle(App.Vector(0, 1078.235167, 0), App.Vector(0, 0, 1), 3), False)
sketch3.addGeometry(Part.Circle(App.Vector(0, 1098.235167, 0), App.Vector(0, 0, 1), 3), False)
sketch3.addConstraint(Sketcher.Constraint("Equal", 0, 1))
sketch3.addConstraint(Sketcher.Constraint("Equal", 1, 2))
sketch3.addConstraint(Sketcher.Constraint("Equal", 2, 3))
sketch3.addConstraint(Sketcher.Constraint("Equal", 3, 4))
sketch3.addConstraint(Sketcher.Constraint("Equal", 4, 5))
sketch3.addConstraint(Sketcher.Constraint("Equal", 5, 6))
sketch3.addConstraint(Sketcher.Constraint("Equal", 6, 7))
sketch3.addConstraint(Sketcher.Constraint("Equal", 7, 8))
sketch3.addConstraint(Sketcher.Constraint("Equal", 8, 9))
sketch3.addConstraint(Sketcher.Constraint("Equal", 9, 10))
sketch3.addConstraint(Sketcher.Constraint("Equal", 10, 11))
sketch3.addConstraint(Sketcher.Constraint("Equal", 11, 12))
sketch3.addConstraint(Sketcher.Constraint("Equal", 12, 13))
sketch3.addConstraint(Sketcher.Constraint("Equal", 13, 14))
sketch3.addConstraint(Sketcher.Constraint("Equal", 14, 15))
sketch3.addConstraint(Sketcher.Constraint("Equal", 15, 16))
sketch3.addConstraint(Sketcher.Constraint("Equal", 16, 17))
sketch3.addConstraint(Sketcher.Constraint("Equal", 17, 18))
sketch3.addConstraint(Sketcher.Constraint("Equal", 18, 19))
sketch3.addConstraint(Sketcher.Constraint("Equal", 19, 20))
sketch3.addConstraint(Sketcher.Constraint("Equal", 20, 21))
sketch3.addConstraint(Sketcher.Constraint("Equal", 21, 22))
sketch3.addConstraint(Sketcher.Constraint("Equal", 22, 23))
sketch3.addConstraint(Sketcher.Constraint("Equal", 23, 24))
sketch3.addConstraint(Sketcher.Constraint("Equal", 24, 25))
sketch3.addConstraint(Sketcher.Constraint("Equal", 25, 26))
sketch3.addConstraint(Sketcher.Constraint("Equal", 26, 27))
sketch3.addConstraint(Sketcher.Constraint("Equal", 27, 28))
sketch3.addConstraint(Sketcher.Constraint("Equal", 28, 29))
sketch3.addConstraint(Sketcher.Constraint("Equal", 29, 30))
sketch3.addConstraint(Sketcher.Constraint("Equal", 30, 31))
sketch3.addConstraint(Sketcher.Constraint("Equal", 31, 32))
sketch3.addConstraint(Sketcher.Constraint("Equal", 32, 33))
sketch3.addConstraint(Sketcher.Constraint("Equal", 33, 34))
sketch3.addConstraint(Sketcher.Constraint("Equal", 34, 35))
sketch3.addConstraint(Sketcher.Constraint("Equal", 35, 36))
sketch3.addConstraint(Sketcher.Constraint("Equal", 36, 37))
sketch3.addConstraint(Sketcher.Constraint("Equal", 37, 38))
sketch3.addConstraint(Sketcher.Constraint("Equal", 38, 39))
sketch3.addConstraint(Sketcher.Constraint("Equal", 39, 40))
sketch3.addConstraint(Sketcher.Constraint("Equal", 40, 41))
sketch3.addConstraint(Sketcher.Constraint("Equal", 41, 42))
sketch3.addConstraint(Sketcher.Constraint("Equal", 42, 43))
sketch3.addConstraint(Sketcher.Constraint("Equal", 43, 44))
sketch3.addConstraint(Sketcher.Constraint("Equal", 44, 45))
sketch3.addConstraint(Sketcher.Constraint("Equal", 45, 46))
sketch3.addConstraint(Sketcher.Constraint("Equal", 46, 47))
sketch3.addConstraint(Sketcher.Constraint("Equal", 47, 48))
sketch3.addConstraint(Sketcher.Constraint("Equal", 48, 49))
sketch3.addConstraint(Sketcher.Constraint("Equal", 49, 50))
sketch3.addConstraint(Sketcher.Constraint("Equal", 50, 51))
sketch3.addConstraint(Sketcher.Constraint("Equal", 51, 52))
sketch3.addConstraint(Sketcher.Constraint("Equal", 52, 53))
sketch3.addConstraint(Sketcher.Constraint("Equal", 53, 54))
sketch3.addConstraint(Sketcher.Constraint("Equal", 54, 55))
sketch3.addConstraint(Sketcher.Constraint("Equal", 55, 56))
sketch3.addConstraint(Sketcher.Constraint("Equal", 56, 57))
sketch3.addConstraint(Sketcher.Constraint("Equal", 57, 58))
sketch3.addConstraint(Sketcher.Constraint("Equal", 58, 59))
sketch3.addConstraint(Sketcher.Constraint("PointOnObject", 0, 3, -2))
sketch3.addConstraint(Sketcher.Constraint("PointOnObject", 1, 3, -2))
sketch3.addConstraint(Sketcher.Constraint("PointOnObject", 2, 3, -2))
sketch3.addConstraint(Sketcher.Constraint("PointOnObject", 3, 3, -2))
sketch3.addConstraint(Sketcher.Constraint("PointOnObject", 4, 3, -2))
sketch3.addConstraint(Sketcher.Constraint("PointOnObject", 5, 3, -2))
sketch3.addConstraint(Sketcher.Constraint("PointOnObject", 6, 3, -2))
sketch3.addConstraint(Sketcher.Constraint("PointOnObject", 7, 3, -2))
sketch3.addConstraint(Sketcher.Constraint("PointOnObject", 8, 3, -2))
sketch3.addConstraint(Sketcher.Constraint("PointOnObject", 9, 3, -2))
sketch3.addConstraint(Sketcher.Constraint("PointOnObject", 10, 3, -2))
sketch3.addConstraint(Sketcher.Constraint("PointOnObject", 11, 3, -2))
sketch3.addConstraint(Sketcher.Constraint("PointOnObject", 12, 3, -2))
sketch3.addConstraint(Sketcher.Constraint("PointOnObject", 13, 3, -2))
sketch3.addConstraint(Sketcher.Constraint("PointOnObject", 14, 3, -2))
sketch3.addConstraint(Sketcher.Constraint("PointOnObject", 15, 3, -2))
sketch3.addConstraint(Sketcher.Constraint("PointOnObject", 16, 3, -2))
sketch3.addConstraint(Sketcher.Constraint("PointOnObject", 17, 3, -2))
sketch3.addConstraint(Sketcher.Constraint("PointOnObject", 18, 3, -2))
sketch3.addConstraint(Sketcher.Constraint("PointOnObject", 19, 3, -2))
sketch3.addConstraint(Sketcher.Constraint("PointOnObject", 20, 3, -2))
sketch3.addConstraint(Sketcher.Constraint("PointOnObject", 21, 3, -2))
sketch3.addConstraint(Sketcher.Constraint("PointOnObject", 22, 3, -2))
sketch3.addConstraint(Sketcher.Constraint("PointOnObject", 23, 3, -2))
sketch3.addConstraint(Sketcher.Constraint("PointOnObject", 24, 3, -2))
sketch3.addConstraint(Sketcher.Constraint("PointOnObject", 25, 3, -2))
sketch3.addConstraint(Sketcher.Constraint("PointOnObject", 26, 3, -2))
sketch3.addConstraint(Sketcher.Constraint("PointOnObject", 27, 3, -2))
sketch3.addConstraint(Sketcher.Constraint("PointOnObject", 28, 3, -2))
sketch3.addConstraint(Sketcher.Constraint("PointOnObject", 29, 3, -2))
sketch3.addConstraint(Sketcher.Constraint("PointOnObject", 30, 3, -2))
sketch3.addConstraint(Sketcher.Constraint("PointOnObject", 31, 3, -2))
sketch3.addConstraint(Sketcher.Constraint("PointOnObject", 32, 3, -2))
sketch3.addConstraint(Sketcher.Constraint("PointOnObject", 33, 3, -2))
sketch3.addConstraint(Sketcher.Constraint("PointOnObject", 34, 3, -2))
sketch3.addConstraint(Sketcher.Constraint("PointOnObject", 35, 3, -2))
sketch3.addConstraint(Sketcher.Constraint("PointOnObject", 36, 3, -2))
sketch3.addConstraint(Sketcher.Constraint("PointOnObject", 37, 3, -2))
sketch3.addConstraint(Sketcher.Constraint("PointOnObject", 38, 3, -2))
sketch3.addConstraint(Sketcher.Constraint("PointOnObject", 39, 3, -2))
sketch3.addConstraint(Sketcher.Constraint("PointOnObject", 40, 3, -2))
sketch3.addConstraint(Sketcher.Constraint("PointOnObject", 41, 3, -2))
sketch3.addConstraint(Sketcher.Constraint("PointOnObject", 42, 3, -2))
sketch3.addConstraint(Sketcher.Constraint("PointOnObject", 43, 3, -2))
sketch3.addConstraint(Sketcher.Constraint("PointOnObject", 44, 3, -2))
sketch3.addConstraint(Sketcher.Constraint("PointOnObject", 45, 3, -2))
sketch3.addConstraint(Sketcher.Constraint("PointOnObject", 46, 3, -2))
sketch3.addConstraint(Sketcher.Constraint("PointOnObject", 47, 3, -2))
sketch3.addConstraint(Sketcher.Constraint("PointOnObject", 48, 3, -2))
sketch3.addConstraint(Sketcher.Constraint("PointOnObject", 49, 3, -2))
sketch3.addConstraint(Sketcher.Constraint("PointOnObject", 50, 3, -2))
sketch3.addConstraint(Sketcher.Constraint("PointOnObject", 51, 3, -2))
sketch3.addConstraint(Sketcher.Constraint("PointOnObject", 52, 3, -2))
sketch3.addConstraint(Sketcher.Constraint("PointOnObject", 53, 3, -2))
sketch3.addConstraint(Sketcher.Constraint("PointOnObject", 54, 3, -2))
sketch3.addConstraint(Sketcher.Constraint("PointOnObject", 55, 3, -2))
sketch3.addConstraint(Sketcher.Constraint("PointOnObject", 56, 3, -2))
sketch3.addConstraint(Sketcher.Constraint("PointOnObject", 57, 3, -2))
sketch3.addConstraint(Sketcher.Constraint("PointOnObject", 58, 3, -2))
sketch3.addConstraint(Sketcher.Constraint("PointOnObject", 59, 3, -2))
sketch3.addConstraint(Sketcher.Constraint("Diameter", 0, Q("6 mm")))
sketch3.addConstraint(Sketcher.Constraint("DistanceY", 0, 3, 1, 3, Q("20 mm")))
sketch3.addConstraint(Sketcher.Constraint("DistanceY", 1, 3, 2, 3, Q("20 mm")))
sketch3.addConstraint(Sketcher.Constraint("DistanceY", 2, 3, 3, 3, Q("20 mm")))
sketch3.addConstraint(Sketcher.Constraint("DistanceY", 3, 3, 4, 3, Q("20 mm")))
sketch3.addConstraint(Sketcher.Constraint("DistanceY", 4, 3, 5, 3, Q("20 mm")))
sketch3.addConstraint(Sketcher.Constraint("DistanceY", 5, 3, 6, 3, Q("20 mm")))
sketch3.addConstraint(Sketcher.Constraint("DistanceY", 6, 3, 7, 3, Q("20 mm")))
sketch3.addConstraint(Sketcher.Constraint("DistanceY", 7, 3, 8, 3, Q("20 mm")))
sketch3.addConstraint(Sketcher.Constraint("DistanceY", 8, 3, 9, 3, Q("20 mm")))
sketch3.addConstraint(Sketcher.Constraint("DistanceY", 9, 3, 10, 3, Q("20 mm")))
sketch3.addConstraint(Sketcher.Constraint("DistanceY", 10, 3, 11, 3, Q("20 mm")))
sketch3.addConstraint(Sketcher.Constraint("DistanceY", 11, 3, 12, 3, Q("20 mm")))
sketch3.addConstraint(Sketcher.Constraint("DistanceY", 12, 3, 13, 3, Q("20 mm")))
sketch3.addConstraint(Sketcher.Constraint("DistanceY", 13, 3, 14, 3, Q("20 mm")))
sketch3.addConstraint(Sketcher.Constraint("DistanceY", 14, 3, 15, 3, Q("20 mm")))
sketch3.addConstraint(Sketcher.Constraint("DistanceY", 15, 3, 16, 3, Q("20 mm")))
sketch3.addConstraint(Sketcher.Constraint("DistanceY", 16, 3, 17, 3, Q("20 mm")))
sketch3.addConstraint(Sketcher.Constraint("DistanceY", 17, 3, 18, 3, Q("20 mm")))
sketch3.addConstraint(Sketcher.Constraint("DistanceY", 18, 3, 19, 3, Q("20 mm")))
sketch3.addConstraint(Sketcher.Constraint("DistanceY", 19, 3, 20, 3, Q("20 mm")))
sketch3.addConstraint(Sketcher.Constraint("DistanceY", 20, 3, 21, 3, Q("20 mm")))
sketch3.addConstraint(Sketcher.Constraint("DistanceY", 21, 3, 22, 3, Q("20 mm")))
sketch3.addConstraint(Sketcher.Constraint("DistanceY", 22, 3, 23, 3, Q("20 mm")))
sketch3.addConstraint(Sketcher.Constraint("DistanceY", 23, 3, 24, 3, Q("20 mm")))
sketch3.addConstraint(Sketcher.Constraint("DistanceY", 24, 3, 25, 3, Q("20 mm")))
sketch3.addConstraint(Sketcher.Constraint("DistanceY", 25, 3, 26, 3, Q("20 mm")))
sketch3.addConstraint(Sketcher.Constraint("DistanceY", 26, 3, 27, 3, Q("20 mm")))
sketch3.addConstraint(Sketcher.Constraint("DistanceY", 27, 3, 28, 3, Q("20 mm")))
sketch3.addConstraint(Sketcher.Constraint("DistanceY", 28, 3, 29, 3, Q("20 mm")))
sketch3.addConstraint(Sketcher.Constraint("DistanceY", 29, 3, 30, 3, Q("20 mm")))
sketch3.addConstraint(Sketcher.Constraint("DistanceY", 30, 3, 31, 3, Q("20 mm")))
sketch3.addConstraint(Sketcher.Constraint("DistanceY", 31, 3, 32, 3, Q("20 mm")))
sketch3.addConstraint(Sketcher.Constraint("DistanceY", 32, 3, 33, 3, Q("20 mm")))
sketch3.addConstraint(Sketcher.Constraint("DistanceY", 33, 3, 34, 3, Q("20 mm")))
sketch3.addConstraint(Sketcher.Constraint("DistanceY", 34, 3, 35, 3, Q("20 mm")))
sketch3.addConstraint(Sketcher.Constraint("DistanceY", 35, 3, 36, 3, Q("20 mm")))
sketch3.addConstraint(Sketcher.Constraint("DistanceY", 36, 3, 37, 3, Q("20 mm")))
sketch3.addConstraint(Sketcher.Constraint("DistanceY", 37, 3, 38, 3, Q("20 mm")))
sketch3.addConstraint(Sketcher.Constraint("DistanceY", 38, 3, 39, 3, Q("20 mm")))
sketch3.addConstraint(Sketcher.Constraint("DistanceY", 39, 3, 40, 3, Q("20 mm")))
sketch3.addConstraint(Sketcher.Constraint("DistanceY", 40, 3, 41, 3, Q("20 mm")))
sketch3.addConstraint(Sketcher.Constraint("DistanceY", 41, 3, 42, 3, Q("20 mm")))
sketch3.addConstraint(Sketcher.Constraint("DistanceY", 42, 3, 43, 3, Q("20 mm")))
sketch3.addConstraint(Sketcher.Constraint("DistanceY", 43, 3, 44, 3, Q("20 mm")))
sketch3.addConstraint(Sketcher.Constraint("DistanceY", 44, 3, 45, 3, Q("20 mm")))
sketch3.addConstraint(Sketcher.Constraint("DistanceY", 45, 3, 46, 3, Q("20 mm")))
sketch3.addConstraint(Sketcher.Constraint("DistanceY", 46, 3, 47, 3, Q("20 mm")))
sketch3.addConstraint(Sketcher.Constraint("DistanceY", 47, 3, 48, 3, Q("20 mm")))
sketch3.addConstraint(Sketcher.Constraint("DistanceY", 48, 3, 49, 3, Q("20 mm")))
sketch3.addConstraint(Sketcher.Constraint("DistanceY", 49, 3, 50, 3, Q("20 mm")))
sketch3.addConstraint(Sketcher.Constraint("DistanceY", 50, 3, 51, 3, Q("20 mm")))
sketch3.addConstraint(Sketcher.Constraint("DistanceY", 51, 3, 52, 3, Q("20 mm")))
sketch3.addConstraint(Sketcher.Constraint("DistanceY", 52, 3, 53, 3, Q("20 mm")))
sketch3.addConstraint(Sketcher.Constraint("DistanceY", 53, 3, 54, 3, Q("20 mm")))
sketch3.addConstraint(Sketcher.Constraint("DistanceY", 54, 3, 55, 3, Q("20 mm")))
sketch3.addConstraint(Sketcher.Constraint("DistanceY", 55, 3, 56, 3, Q("20 mm")))
sketch3.addConstraint(Sketcher.Constraint("DistanceY", 56, 3, 57, 3, Q("20 mm")))
sketch3.addConstraint(Sketcher.Constraint("DistanceY", 57, 3, 58, 3, Q("20 mm")))
sketch3.addConstraint(Sketcher.Constraint("DistanceY", 58, 3, 59, 3, Q("20 mm")))
sketch3.addConstraint(Sketcher.Constraint("DistanceY", 0, 3, -1, 1, Q("81.764833 mm")))
pocket2 = body.newObject("PartDesign::Pocket", "Pocket001")
pocket2.Profile = sketch3
pocket2.Length = 3.5
pocket2.Reversed = True

doc.recompute()
